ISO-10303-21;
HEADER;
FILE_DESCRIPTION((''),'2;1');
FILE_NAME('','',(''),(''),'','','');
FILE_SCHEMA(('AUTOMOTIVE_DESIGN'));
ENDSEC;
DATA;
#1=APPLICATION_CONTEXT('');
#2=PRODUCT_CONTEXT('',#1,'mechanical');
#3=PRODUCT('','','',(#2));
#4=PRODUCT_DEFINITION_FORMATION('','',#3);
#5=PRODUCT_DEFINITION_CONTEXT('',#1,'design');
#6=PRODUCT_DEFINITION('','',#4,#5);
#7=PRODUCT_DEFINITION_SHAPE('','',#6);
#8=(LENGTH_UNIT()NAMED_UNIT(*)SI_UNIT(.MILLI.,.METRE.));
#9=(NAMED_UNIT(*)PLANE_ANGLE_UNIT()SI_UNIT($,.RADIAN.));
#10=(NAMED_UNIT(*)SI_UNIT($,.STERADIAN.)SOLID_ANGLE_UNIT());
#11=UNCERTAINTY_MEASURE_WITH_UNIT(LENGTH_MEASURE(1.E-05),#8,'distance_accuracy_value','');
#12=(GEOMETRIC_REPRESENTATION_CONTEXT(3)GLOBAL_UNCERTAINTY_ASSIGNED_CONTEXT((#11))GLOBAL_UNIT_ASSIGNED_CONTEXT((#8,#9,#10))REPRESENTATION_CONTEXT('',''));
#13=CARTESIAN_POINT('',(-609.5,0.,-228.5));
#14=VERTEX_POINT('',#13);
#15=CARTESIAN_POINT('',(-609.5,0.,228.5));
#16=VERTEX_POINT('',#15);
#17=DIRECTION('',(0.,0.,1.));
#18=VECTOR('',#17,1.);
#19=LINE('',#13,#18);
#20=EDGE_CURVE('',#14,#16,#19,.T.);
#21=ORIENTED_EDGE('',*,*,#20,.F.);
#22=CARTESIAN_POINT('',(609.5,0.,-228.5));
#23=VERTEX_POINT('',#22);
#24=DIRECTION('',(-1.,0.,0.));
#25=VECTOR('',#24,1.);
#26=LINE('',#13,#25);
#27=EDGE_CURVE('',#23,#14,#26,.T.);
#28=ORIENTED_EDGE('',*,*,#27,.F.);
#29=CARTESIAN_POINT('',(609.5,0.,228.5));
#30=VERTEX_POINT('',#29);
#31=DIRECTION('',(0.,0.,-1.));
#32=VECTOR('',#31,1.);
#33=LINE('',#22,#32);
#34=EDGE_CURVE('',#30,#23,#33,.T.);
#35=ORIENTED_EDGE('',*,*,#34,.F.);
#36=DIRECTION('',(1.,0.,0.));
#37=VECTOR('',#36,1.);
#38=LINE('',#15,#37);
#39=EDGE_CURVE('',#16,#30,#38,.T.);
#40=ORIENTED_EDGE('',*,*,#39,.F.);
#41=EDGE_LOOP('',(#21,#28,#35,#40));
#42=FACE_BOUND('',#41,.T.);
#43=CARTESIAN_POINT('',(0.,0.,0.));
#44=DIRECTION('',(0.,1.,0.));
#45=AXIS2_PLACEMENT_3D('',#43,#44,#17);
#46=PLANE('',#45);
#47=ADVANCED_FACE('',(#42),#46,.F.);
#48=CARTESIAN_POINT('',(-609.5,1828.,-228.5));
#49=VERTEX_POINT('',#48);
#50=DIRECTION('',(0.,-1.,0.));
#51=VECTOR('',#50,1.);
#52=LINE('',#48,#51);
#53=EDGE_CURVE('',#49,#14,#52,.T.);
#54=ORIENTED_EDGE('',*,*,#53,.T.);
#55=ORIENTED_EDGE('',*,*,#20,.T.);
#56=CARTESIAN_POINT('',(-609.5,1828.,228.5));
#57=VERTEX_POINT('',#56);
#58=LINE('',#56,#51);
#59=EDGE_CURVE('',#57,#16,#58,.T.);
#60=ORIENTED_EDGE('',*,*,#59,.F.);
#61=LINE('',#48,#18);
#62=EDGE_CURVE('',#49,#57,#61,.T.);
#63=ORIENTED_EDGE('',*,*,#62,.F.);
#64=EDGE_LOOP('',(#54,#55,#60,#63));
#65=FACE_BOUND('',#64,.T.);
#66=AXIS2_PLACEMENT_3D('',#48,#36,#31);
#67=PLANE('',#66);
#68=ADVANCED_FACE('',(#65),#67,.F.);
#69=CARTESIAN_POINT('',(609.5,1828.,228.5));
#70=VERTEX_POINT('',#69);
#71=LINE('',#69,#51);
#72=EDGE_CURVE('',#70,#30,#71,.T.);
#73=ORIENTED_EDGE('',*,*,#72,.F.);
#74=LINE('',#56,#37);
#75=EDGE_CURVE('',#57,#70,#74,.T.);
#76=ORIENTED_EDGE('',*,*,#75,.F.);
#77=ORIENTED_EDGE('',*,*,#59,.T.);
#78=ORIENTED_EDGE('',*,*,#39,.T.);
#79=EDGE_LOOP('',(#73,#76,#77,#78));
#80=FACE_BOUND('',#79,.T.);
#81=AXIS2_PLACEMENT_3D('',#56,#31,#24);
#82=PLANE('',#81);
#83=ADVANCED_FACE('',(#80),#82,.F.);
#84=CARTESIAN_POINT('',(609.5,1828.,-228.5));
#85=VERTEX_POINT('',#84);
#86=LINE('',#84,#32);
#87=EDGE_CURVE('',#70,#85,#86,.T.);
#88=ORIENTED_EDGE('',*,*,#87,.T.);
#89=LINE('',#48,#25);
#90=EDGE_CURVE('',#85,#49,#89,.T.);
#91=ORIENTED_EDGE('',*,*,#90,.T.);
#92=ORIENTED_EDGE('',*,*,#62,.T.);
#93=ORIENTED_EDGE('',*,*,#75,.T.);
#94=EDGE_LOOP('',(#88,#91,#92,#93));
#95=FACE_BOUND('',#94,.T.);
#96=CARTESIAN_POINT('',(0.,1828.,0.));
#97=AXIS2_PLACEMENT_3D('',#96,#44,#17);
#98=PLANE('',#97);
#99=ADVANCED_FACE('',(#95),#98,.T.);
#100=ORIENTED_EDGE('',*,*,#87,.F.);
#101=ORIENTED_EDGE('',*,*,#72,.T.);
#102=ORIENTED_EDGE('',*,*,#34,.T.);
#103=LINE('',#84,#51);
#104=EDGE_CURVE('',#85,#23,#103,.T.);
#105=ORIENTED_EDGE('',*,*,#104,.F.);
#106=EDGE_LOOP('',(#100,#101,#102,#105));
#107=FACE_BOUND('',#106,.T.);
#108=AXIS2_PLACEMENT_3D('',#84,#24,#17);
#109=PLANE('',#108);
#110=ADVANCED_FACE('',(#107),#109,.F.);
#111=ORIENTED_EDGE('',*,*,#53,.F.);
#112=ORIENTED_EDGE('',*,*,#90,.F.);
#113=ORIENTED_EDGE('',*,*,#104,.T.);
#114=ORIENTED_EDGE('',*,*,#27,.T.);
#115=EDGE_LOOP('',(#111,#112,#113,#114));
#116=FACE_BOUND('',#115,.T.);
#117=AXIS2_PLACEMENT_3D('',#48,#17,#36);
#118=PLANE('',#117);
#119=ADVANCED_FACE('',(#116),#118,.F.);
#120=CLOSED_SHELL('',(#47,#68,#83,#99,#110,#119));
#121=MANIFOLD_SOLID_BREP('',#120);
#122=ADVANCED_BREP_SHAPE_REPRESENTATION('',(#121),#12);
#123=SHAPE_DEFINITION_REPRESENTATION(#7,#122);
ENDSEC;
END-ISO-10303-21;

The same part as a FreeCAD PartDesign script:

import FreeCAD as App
import Part
import Sketcher

V = App.Vector


def add_polygon(sketch, points):
    """Adds a closed chain of lines whose ends are joined by coincident constraints."""
    first, n = sketch.GeometryCount, len(points)
    for a, b in zip(points, points[1:] + points[:1]):
        sketch.addGeometry(Part.LineSegment(App.Vector(*a, 0), App.Vector(*b, 0)), False)
    for i in range(n):
        sketch.addConstraint(Sketcher.Constraint("Coincident", first + i, 2, first + (i + 1) % n, 1))

doc = App.newDocument("Part")
body = doc.addObject("PartDesign::Body", "Body")

# Sketch on XZ plane
sketch1 = body.newObject("Sketcher::SketchObject", "Sketch")
sketch1.AttachmentSupport = (doc.getObject("XZ_Plane"), [""])
sketch1.MapMode = "FlatFace"
add_polygon(sketch1, [(-610, -228), (-610, 228), (610, 228), (610, -228)])  # lines 0-3
sketch1.addConstraint(Sketcher.Constraint("Vertical", 0))
sketch1.addConstraint(Sketcher.Constraint("Horizontal", 1))
sketch1.addConstraint(Sketcher.Constraint("Vertical", 2))
sketch1.addConstraint(Sketcher.Constraint("Horizontal", 3))
sketch1.addConstraint(Sketcher.Constraint("Symmetric", 0, 2, 2, 2, -1, 1))
sketch1.addConstraint(Sketcher.Constraint("DistanceX", 1, 1, 1, 2, 1219.0))
sketch1.addConstraint(Sketcher.Constraint("DistanceY", 0, 1, 0, 2, 457.0))
pad1 = body.newObject("PartDesign::Pad", "Pad")
pad1.Profile = sketch1
pad1.Length = 1828
pad1.Reversed = True

doc.recompute()
